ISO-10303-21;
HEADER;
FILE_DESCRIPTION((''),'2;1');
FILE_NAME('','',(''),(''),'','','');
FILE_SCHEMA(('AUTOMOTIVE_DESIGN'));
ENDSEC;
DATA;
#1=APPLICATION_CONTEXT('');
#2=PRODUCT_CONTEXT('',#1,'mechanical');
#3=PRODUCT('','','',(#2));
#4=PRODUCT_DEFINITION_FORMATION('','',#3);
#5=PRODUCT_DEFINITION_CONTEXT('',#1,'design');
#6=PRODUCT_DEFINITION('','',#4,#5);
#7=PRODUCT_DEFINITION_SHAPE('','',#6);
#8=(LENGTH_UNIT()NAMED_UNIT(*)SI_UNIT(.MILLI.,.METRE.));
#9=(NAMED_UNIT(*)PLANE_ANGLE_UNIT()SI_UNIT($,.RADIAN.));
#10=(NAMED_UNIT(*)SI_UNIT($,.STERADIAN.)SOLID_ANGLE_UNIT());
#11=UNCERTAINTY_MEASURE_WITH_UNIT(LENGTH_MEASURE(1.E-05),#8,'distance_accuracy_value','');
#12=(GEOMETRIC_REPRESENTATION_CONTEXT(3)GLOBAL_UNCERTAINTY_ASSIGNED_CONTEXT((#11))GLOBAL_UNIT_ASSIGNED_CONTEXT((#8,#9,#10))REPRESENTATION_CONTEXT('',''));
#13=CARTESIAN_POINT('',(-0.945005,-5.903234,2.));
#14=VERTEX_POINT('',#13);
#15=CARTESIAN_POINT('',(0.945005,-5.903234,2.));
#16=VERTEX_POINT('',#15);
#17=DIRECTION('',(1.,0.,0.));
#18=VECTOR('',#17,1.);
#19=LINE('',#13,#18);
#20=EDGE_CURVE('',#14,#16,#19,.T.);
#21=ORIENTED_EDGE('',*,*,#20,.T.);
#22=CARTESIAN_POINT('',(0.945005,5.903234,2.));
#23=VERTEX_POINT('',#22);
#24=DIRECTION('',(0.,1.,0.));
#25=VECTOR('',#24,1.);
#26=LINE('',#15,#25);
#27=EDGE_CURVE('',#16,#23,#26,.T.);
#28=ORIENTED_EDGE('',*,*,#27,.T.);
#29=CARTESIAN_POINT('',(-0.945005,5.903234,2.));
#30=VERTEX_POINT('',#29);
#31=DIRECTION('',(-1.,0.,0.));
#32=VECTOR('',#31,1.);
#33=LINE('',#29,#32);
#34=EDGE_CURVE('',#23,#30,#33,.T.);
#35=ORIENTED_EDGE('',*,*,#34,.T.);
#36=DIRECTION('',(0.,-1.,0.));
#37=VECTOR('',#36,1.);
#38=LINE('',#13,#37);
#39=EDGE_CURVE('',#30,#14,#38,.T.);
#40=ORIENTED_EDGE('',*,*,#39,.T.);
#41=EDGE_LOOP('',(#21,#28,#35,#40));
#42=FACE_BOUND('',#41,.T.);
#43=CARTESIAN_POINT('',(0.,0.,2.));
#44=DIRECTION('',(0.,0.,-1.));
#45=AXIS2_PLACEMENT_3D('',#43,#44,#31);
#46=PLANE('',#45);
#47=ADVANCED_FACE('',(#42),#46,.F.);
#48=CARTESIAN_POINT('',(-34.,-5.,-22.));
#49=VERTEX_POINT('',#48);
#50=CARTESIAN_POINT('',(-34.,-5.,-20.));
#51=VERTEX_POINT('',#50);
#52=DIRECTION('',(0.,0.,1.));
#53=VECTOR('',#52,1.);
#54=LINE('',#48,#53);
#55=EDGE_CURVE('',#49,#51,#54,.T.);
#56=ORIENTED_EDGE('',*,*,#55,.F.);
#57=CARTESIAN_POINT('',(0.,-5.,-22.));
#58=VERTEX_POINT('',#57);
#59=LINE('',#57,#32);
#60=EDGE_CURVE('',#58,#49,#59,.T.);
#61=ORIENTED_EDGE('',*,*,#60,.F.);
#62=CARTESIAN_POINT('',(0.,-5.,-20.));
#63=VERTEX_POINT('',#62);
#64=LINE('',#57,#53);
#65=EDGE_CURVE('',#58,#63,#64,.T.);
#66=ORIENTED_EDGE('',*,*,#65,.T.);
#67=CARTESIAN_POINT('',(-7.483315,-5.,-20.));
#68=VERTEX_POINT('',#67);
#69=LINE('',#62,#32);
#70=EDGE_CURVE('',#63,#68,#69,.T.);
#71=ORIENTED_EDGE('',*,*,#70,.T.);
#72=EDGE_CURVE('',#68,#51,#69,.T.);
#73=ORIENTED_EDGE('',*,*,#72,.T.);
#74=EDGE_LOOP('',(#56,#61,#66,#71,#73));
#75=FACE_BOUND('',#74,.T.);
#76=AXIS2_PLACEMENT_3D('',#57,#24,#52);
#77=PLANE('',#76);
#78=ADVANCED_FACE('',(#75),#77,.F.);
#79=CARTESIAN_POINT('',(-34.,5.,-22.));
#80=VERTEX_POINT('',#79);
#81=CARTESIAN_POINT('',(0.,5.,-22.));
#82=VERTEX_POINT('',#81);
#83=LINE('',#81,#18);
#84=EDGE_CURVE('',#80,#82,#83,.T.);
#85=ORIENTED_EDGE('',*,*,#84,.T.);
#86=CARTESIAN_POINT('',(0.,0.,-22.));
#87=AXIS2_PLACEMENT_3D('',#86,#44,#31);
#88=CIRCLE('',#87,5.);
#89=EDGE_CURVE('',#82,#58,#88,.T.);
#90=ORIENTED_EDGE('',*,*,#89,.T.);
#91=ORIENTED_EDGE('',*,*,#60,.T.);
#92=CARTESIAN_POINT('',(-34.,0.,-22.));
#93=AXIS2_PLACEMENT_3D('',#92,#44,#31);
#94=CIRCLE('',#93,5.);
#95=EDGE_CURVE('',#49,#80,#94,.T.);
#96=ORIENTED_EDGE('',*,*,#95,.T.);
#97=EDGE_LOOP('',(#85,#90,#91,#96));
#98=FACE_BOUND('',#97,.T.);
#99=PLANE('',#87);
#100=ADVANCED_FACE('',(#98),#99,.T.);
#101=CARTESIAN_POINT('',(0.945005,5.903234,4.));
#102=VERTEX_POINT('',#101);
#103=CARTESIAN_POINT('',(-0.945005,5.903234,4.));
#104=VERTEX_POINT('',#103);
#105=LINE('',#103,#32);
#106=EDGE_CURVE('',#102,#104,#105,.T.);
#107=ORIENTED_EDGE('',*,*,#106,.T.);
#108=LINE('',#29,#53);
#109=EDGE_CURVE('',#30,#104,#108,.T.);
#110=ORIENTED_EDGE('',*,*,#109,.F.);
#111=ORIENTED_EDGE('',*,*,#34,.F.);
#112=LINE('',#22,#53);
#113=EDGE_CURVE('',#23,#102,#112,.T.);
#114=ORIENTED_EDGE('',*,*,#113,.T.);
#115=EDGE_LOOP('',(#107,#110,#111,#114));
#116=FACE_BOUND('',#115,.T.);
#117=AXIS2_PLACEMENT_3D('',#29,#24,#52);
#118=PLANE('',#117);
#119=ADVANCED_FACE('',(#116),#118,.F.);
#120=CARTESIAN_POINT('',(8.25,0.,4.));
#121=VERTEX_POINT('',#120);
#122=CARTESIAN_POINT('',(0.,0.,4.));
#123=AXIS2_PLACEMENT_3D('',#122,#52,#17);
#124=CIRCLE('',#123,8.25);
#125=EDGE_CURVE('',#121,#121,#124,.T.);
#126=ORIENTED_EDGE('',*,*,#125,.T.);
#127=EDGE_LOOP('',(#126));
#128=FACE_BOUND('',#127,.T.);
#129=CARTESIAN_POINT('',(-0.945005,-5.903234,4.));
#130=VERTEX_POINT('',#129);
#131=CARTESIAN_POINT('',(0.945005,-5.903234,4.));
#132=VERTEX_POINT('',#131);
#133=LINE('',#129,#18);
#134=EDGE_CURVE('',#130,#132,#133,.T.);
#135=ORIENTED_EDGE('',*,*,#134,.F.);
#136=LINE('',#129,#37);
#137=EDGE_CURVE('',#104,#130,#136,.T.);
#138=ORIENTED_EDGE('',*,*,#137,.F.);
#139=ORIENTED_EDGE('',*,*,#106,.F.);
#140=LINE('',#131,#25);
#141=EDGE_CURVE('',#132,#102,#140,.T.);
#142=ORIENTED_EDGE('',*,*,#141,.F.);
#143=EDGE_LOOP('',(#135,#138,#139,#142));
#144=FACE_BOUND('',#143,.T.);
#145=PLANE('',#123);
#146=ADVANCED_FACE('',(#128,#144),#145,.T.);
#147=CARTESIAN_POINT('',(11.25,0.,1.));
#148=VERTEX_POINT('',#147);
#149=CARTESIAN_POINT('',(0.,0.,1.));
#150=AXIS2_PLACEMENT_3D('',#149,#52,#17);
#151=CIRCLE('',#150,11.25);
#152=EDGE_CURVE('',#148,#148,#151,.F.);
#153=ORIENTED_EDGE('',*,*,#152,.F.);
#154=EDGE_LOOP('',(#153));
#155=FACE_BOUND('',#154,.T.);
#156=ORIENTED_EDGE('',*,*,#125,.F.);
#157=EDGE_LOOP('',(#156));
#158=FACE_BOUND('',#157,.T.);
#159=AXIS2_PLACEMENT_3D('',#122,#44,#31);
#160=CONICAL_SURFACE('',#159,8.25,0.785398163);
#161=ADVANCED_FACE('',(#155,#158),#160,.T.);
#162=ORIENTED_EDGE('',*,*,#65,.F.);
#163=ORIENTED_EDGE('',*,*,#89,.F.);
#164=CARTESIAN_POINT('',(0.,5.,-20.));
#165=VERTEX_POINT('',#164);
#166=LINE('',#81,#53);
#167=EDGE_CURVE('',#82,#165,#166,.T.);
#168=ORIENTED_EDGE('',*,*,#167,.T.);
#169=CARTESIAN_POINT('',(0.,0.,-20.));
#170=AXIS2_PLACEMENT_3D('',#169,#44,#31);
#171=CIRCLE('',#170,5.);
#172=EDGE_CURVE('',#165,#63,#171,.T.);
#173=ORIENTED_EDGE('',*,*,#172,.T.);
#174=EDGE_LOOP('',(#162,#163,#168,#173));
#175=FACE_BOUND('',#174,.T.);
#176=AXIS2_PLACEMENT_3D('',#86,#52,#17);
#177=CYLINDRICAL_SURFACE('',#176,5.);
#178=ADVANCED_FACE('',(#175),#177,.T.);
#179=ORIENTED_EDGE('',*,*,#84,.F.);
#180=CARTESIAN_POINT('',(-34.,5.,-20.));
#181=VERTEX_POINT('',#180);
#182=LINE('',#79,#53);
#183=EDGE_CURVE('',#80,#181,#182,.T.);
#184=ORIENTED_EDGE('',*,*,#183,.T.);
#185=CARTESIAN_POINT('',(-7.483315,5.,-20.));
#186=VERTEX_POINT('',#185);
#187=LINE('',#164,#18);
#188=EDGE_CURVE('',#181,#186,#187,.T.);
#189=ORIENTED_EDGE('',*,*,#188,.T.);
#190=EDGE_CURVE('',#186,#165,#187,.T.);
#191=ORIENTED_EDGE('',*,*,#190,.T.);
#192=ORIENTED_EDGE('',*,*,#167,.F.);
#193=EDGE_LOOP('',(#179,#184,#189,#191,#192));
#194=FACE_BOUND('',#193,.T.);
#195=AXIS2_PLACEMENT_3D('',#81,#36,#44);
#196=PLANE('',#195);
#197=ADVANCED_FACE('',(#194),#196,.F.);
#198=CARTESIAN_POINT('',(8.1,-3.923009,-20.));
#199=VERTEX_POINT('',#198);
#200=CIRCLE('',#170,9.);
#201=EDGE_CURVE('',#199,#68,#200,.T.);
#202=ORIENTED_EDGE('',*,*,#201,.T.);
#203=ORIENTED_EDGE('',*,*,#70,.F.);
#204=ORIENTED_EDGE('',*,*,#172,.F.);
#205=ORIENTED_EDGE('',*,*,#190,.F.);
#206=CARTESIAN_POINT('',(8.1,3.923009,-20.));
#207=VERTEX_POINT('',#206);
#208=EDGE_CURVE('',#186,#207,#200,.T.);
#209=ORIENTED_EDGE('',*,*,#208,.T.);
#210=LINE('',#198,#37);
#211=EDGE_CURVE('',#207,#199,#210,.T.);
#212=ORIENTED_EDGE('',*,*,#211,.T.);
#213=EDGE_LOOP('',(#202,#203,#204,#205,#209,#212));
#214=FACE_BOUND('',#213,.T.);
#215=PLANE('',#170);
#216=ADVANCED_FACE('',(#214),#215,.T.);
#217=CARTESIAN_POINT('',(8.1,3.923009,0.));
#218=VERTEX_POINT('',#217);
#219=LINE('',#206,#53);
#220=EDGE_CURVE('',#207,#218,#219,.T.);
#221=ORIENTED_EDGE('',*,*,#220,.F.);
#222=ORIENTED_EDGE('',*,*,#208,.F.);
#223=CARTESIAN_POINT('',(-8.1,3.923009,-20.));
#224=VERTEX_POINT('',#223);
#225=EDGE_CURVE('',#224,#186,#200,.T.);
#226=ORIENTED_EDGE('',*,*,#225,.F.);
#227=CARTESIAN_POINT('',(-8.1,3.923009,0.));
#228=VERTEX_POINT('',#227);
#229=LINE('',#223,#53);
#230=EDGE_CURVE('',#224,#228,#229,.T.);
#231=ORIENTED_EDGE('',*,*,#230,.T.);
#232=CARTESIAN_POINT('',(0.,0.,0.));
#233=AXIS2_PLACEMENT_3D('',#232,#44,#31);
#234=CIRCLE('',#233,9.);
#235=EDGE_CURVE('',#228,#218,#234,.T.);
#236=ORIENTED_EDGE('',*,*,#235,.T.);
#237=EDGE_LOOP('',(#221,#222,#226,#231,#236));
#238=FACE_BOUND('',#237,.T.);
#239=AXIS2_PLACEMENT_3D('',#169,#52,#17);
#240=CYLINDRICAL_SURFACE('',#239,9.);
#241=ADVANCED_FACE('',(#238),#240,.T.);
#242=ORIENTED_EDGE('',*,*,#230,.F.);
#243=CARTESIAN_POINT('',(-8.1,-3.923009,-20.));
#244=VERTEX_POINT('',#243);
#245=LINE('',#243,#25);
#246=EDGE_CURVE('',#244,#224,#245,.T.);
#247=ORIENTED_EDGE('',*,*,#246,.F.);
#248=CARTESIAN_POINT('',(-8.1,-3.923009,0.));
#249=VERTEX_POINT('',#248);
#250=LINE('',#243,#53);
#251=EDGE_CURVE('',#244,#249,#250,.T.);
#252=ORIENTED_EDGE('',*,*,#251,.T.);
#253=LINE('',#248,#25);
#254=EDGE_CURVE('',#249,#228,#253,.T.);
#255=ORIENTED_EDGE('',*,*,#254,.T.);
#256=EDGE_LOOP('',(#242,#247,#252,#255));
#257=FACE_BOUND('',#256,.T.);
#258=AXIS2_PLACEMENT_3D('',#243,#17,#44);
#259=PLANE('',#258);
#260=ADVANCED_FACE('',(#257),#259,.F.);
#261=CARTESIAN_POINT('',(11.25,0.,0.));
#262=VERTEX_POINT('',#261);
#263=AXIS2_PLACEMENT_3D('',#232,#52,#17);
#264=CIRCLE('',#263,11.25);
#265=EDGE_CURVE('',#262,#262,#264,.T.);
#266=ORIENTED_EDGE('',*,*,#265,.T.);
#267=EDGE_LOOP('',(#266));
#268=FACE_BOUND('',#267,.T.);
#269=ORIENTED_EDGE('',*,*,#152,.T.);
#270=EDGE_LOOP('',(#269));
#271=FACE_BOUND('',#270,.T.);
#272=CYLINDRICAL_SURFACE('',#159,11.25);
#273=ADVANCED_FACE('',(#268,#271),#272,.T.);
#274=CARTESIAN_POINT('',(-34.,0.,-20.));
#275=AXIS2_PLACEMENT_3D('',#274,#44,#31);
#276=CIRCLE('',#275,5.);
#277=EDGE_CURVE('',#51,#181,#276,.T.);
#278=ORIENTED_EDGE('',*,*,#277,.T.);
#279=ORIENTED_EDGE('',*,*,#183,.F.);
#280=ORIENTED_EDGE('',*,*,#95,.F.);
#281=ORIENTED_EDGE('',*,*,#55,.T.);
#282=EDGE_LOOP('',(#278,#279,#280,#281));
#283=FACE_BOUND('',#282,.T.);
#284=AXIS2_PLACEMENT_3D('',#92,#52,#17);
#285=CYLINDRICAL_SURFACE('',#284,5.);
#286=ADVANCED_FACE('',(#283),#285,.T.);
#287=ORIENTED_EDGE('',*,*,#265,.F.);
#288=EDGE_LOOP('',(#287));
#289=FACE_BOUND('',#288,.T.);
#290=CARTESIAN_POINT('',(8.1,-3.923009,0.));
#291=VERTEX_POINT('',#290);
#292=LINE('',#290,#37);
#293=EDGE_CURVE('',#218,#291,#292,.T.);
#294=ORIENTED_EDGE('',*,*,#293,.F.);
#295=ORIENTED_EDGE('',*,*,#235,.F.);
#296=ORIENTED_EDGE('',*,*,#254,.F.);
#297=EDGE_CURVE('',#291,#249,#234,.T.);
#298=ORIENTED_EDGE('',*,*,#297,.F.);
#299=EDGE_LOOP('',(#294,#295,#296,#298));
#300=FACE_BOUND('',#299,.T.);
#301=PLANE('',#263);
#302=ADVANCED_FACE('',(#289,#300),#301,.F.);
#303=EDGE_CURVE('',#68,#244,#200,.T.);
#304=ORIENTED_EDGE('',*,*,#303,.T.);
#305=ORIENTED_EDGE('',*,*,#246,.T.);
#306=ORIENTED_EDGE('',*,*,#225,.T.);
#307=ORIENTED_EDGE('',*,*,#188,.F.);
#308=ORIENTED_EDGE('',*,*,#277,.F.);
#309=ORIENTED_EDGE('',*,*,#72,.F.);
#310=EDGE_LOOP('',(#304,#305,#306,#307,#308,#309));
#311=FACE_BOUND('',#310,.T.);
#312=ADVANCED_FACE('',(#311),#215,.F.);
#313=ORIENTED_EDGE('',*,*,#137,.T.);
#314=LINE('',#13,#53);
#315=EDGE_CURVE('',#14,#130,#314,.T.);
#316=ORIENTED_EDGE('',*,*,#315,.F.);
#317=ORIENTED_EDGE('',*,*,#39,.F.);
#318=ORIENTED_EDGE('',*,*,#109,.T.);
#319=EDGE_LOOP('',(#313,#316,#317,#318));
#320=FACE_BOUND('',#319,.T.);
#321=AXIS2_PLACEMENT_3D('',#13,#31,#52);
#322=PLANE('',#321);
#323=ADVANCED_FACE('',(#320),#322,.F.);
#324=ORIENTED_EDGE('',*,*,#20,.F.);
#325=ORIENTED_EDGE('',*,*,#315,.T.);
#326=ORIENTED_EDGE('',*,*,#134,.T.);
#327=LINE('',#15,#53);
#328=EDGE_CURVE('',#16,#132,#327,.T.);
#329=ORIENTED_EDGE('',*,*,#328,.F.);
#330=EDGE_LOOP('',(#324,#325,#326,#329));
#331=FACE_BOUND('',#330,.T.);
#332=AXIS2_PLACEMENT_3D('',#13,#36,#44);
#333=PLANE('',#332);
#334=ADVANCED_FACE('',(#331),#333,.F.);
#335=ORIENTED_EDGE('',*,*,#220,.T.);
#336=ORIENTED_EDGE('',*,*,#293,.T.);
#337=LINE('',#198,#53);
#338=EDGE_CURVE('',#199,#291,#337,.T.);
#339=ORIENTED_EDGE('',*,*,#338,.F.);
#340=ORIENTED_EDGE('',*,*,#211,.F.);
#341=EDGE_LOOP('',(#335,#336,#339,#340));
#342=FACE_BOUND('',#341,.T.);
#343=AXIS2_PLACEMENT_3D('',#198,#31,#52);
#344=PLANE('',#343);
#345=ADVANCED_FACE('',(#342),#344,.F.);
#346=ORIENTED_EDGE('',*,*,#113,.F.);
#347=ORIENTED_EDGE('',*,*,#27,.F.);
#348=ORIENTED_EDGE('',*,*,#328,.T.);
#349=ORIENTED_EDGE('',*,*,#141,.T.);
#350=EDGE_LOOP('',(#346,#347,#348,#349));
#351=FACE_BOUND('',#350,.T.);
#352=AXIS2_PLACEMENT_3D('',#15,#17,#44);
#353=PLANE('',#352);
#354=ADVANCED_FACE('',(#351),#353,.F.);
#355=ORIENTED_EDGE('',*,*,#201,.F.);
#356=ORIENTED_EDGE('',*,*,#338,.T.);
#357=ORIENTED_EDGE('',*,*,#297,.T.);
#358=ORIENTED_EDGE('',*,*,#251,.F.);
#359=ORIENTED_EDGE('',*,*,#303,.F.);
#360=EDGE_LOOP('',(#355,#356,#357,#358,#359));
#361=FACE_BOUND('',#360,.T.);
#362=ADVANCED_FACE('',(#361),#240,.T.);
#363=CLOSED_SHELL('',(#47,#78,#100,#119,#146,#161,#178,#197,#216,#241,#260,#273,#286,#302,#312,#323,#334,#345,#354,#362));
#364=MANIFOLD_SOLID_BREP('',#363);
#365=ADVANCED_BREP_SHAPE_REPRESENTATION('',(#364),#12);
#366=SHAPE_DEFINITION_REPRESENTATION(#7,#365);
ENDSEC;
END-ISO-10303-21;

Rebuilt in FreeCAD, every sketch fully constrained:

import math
import FreeCAD as App
import Part
import Sketcher

V = App.Vector


def edges_at(feature, points):
    """Names of the edges that pass closest to the given points."""
    edges = feature.Shape.Edges
    near = lambda p: min(range(len(edges)), key=lambda i: edges[i].distToShape(Part.Vertex(*p))[0])
    return sorted({f"Edge{near(p) + 1}" for p in points})

doc = App.newDocument("Part")
body = doc.addObject("PartDesign::Body", "Body")

# Sketch on XY plane
sketch1 = body.newObject("Sketcher::SketchObject", "Sketch")
sketch1.AttachmentSupport = (doc.getObject("XY_Plane"), [""])
sketch1.MapMode = "FlatFace"
sketch1.addGeometry(Part.Circle(V(0, 0, 0), V(0, 0, 1), 11.25), False)
sketch1.addConstraint([
    Sketcher.Constraint("Coincident", 0, 3, -1, 1),
    Sketcher.Constraint("Diameter", 0, 22.5),
])
pad1 = body.newObject("PartDesign::Pad", "Pad")
pad1.Profile = sketch1
pad1.Length = 4

# Sketch on XY plane
sketch2 = body.newObject("Sketcher::SketchObject", "Sketch001")
sketch2.AttachmentSupport = (doc.getObject("XY_Plane"), [""])
sketch2.MapMode = "FlatFace"
sketch2.AttachmentOffset = App.Placement(V(0, 0, 4), App.Rotation())
sketch2.addGeometry([
    Part.LineSegment(V(-0.945005, 5.903234, 0), V(-0.945005, -5.903234, 0)),
    Part.LineSegment(V(-0.945005, -5.903234, 0), V(0.945005, -5.903234, 0)),
    Part.LineSegment(V(0.945005, -5.903234, 0), V(0.945005, 5.903234, 0)),
    Part.LineSegment(V(0.945005, 5.903234, 0), V(-0.945005, 5.903234, 0)),
], False)
sketch2.addConstraint([
    Sketcher.Constraint("Coincident", 0, 2, 1, 1),
    Sketcher.Constraint("Coincident", 1, 2, 2, 1),
    Sketcher.Constraint("Coincident", 2, 2, 3, 1),
    Sketcher.Constraint("Coincident", 3, 2, 0, 1),
    Sketcher.Constraint("Vertical", 0),
    Sketcher.Constraint("Horizontal", 1),
    Sketcher.Constraint("Vertical", 2),
    Sketcher.Constraint("Horizontal", 3),
    Sketcher.Constraint("Symmetric", 0, 2, 2, 2, -1, 1),
    Sketcher.Constraint("DistanceX", 1, 1, 1, 2, 1.890009),
    Sketcher.Constraint("DistanceY", 0, 2, 0, 1, 11.806467),
])
pocket1 = body.newObject("PartDesign::Pocket", "Pocket")
pocket1.Profile = sketch2
pocket1.Length = 2

# Sketch on XY plane
sketch3 = body.newObject("Sketcher::SketchObject", "Sketch002")
sketch3.AttachmentSupport = (doc.getObject("XY_Plane"), [""])
sketch3.MapMode = "FlatFace"
sketch3.addGeometry([
    Part.LineSegment(V(8.1, 3.923009, 0), V(8.1, -3.923009, 0)),
    Part.ArcOfCircle(Part.Circle(V(0, 0, 0), V(0, 0, 1), 9), math.radians(-154.158067), math.radians(-25.841933)),
    Part.LineSegment(V(-8.1, -3.923009, 0), V(-8.1, 3.923009, 0)),
    Part.ArcOfCircle(Part.Circle(V(0, 0, 0), V(0, 0, 1), 9), math.radians(25.841933), math.radians(154.158067)),
], False)
sketch3.addConstraint([
    Sketcher.Constraint("Coincident", 0, 2, 1, 2),
    Sketcher.Constraint("Coincident", 1, 1, 2, 1),
    Sketcher.Constraint("Coincident", 2, 2, 3, 2),
    Sketcher.Constraint("Coincident", 3, 1, 0, 1),
    Sketcher.Constraint("Vertical", 0),
    Sketcher.Constraint("Vertical", 2),
    Sketcher.Constraint("Coincident", 1, 3, -1, 1),
    Sketcher.Constraint("Coincident", 3, 3, -1, 1),
    Sketcher.Constraint("Equal", 1, 3),
    Sketcher.Constraint("Horizontal", 0, 2, 1, 1),
    Sketcher.Constraint("Radius", 1, 9.0),
    Sketcher.Constraint("DistanceX", -1, 1, 0, 2, 8.1),
])
pad2 = body.newObject("PartDesign::Pad", "Pad001")
pad2.Profile = sketch3
pad2.Length = 20
pad2.Reversed = True

# Sketch on XY plane
sketch4 = body.newObject("Sketcher::SketchObject", "Sketch003")
sketch4.AttachmentSupport = (doc.getObject("XY_Plane"), [""])
sketch4.MapMode = "FlatFace"
sketch4.AttachmentOffset = App.Placement(V(0, 0, -20), App.Rotation())
sketch4.addGeometry([
    Part.LineSegment(V(-34, 5, 0), V(0, 5, 0)),
    Part.ArcOfCircle(Part.Circle(V(0, 0, 0), V(0, 0, 1), 5), math.radians(-90), math.radians(90)),
    Part.LineSegment(V(0, -5, 0), V(-34, -5, 0)),
    Part.ArcOfCircle(Part.Circle(V(-34, 0, 0), V(0, 0, 1), 5), math.radians(90), math.radians(270)),
], False)
sketch4.addConstraint([
    Sketcher.Constraint("Tangent", 0, 2, 1, 2),
    Sketcher.Constraint("Tangent", 1, 1, 2, 1),
    Sketcher.Constraint("Tangent", 2, 2, 3, 2),
    Sketcher.Constraint("Tangent", 3, 1, 0, 1),
    Sketcher.Constraint("Horizontal", 0),
    Sketcher.Constraint("Horizontal", 2),
    Sketcher.Constraint("Coincident", 1, 3, -1, 1),
    Sketcher.Constraint("Radius", 1, 5.0),
    Sketcher.Constraint("DistanceX", 0, 1, 0, 2, 34.0),
])
pad3 = body.newObject("PartDesign::Pad", "Pad002")
pad3.Profile = sketch4
pad3.Length = 2
pad3.Reversed = True
doc.recompute()

chamfer = body.newObject("PartDesign::Chamfer", "Chamfer")
chamfer.Base = (pad3, edges_at(pad3, [(-11.25, 0, 4)]))
chamfer.Size = 3

doc.recompute()
